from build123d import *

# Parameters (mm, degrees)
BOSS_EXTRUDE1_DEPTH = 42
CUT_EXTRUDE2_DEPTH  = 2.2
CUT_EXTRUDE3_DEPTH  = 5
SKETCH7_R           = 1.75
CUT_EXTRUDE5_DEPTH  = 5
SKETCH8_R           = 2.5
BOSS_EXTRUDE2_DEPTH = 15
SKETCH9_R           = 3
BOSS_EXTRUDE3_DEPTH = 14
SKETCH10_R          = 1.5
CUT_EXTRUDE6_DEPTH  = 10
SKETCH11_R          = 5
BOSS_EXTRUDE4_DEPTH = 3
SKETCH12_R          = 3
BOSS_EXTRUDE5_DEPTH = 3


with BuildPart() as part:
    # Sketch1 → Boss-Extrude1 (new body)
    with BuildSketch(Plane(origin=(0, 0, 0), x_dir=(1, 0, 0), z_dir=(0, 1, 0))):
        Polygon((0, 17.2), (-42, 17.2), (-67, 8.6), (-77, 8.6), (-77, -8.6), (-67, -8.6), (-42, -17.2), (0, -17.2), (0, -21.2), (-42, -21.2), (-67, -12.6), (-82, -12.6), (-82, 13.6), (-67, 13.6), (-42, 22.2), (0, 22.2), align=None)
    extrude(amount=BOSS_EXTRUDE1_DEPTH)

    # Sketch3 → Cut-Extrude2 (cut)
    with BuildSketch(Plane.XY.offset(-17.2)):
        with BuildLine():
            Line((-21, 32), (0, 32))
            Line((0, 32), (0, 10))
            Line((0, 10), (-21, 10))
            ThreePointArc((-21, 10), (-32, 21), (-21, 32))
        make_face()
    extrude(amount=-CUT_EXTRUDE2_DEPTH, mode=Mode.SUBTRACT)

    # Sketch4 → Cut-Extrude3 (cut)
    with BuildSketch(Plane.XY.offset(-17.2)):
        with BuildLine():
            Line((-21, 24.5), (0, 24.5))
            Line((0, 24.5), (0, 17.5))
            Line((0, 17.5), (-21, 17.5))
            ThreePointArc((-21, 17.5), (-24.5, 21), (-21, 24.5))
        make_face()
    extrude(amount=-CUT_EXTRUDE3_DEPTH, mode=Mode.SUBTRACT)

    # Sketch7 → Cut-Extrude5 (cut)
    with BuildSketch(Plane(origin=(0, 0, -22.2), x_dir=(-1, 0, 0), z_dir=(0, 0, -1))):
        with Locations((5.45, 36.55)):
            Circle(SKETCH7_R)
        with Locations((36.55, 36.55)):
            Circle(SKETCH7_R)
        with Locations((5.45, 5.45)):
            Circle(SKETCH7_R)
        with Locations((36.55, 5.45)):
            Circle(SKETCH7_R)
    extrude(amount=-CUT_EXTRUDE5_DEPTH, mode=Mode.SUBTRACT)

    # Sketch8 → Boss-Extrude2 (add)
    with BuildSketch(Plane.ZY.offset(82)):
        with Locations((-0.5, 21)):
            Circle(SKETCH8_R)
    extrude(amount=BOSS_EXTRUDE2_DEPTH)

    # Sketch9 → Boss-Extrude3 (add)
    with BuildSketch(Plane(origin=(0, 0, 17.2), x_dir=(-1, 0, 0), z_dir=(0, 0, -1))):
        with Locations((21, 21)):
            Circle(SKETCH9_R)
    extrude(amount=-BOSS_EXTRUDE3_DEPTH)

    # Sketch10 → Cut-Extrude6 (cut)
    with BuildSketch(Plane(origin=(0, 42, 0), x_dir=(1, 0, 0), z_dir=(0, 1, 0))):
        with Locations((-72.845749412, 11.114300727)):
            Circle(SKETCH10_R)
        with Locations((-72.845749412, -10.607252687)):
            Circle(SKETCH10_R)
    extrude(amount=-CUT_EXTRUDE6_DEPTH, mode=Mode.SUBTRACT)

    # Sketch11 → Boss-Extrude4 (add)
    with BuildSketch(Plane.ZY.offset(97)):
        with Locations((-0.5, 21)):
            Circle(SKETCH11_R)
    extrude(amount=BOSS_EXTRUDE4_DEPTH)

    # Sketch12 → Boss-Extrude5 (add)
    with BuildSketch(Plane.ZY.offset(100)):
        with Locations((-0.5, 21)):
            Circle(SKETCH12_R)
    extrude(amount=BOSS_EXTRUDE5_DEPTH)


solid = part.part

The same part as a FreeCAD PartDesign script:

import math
import FreeCAD as App
import Part
import Sketcher
from FreeCAD import Vector


def add_polygon(sketch, points):
    """Adds a closed chain of lines whose ends are joined by coincident constraints."""
    first, n = sketch.GeometryCount, len(points)
    for a, b in zip(points, points[1:] + points[:1]):
        sketch.addGeometry(Part.LineSegment(App.Vector(*a, 0), App.Vector(*b, 0)), False)
    for i in range(n):
        sketch.addConstraint(Sketcher.Constraint("Coincident", first + i, 2, first + (i + 1) % n, 1))

doc = App.newDocument("Part")
body = doc.addObject("PartDesign::Body", "Body")

sketch1 = doc.addObject("Sketcher::SketchObject", "Sketch")
body.addObject(sketch1)
sketch1.AttachmentSupport = (doc.XZ_Plane, [""])
sketch1.MapMode = "FlatFace"
add_polygon(sketch1, [(-42, -17.2), (0, -17.2), (0, -22.2), (-42, -22.2), (-67, -13.6), (-82, -13.6), (-82, 12.6), (-67, 12.6), (-42, 21.2), (0, 21.2), (0, 17.2), (-42, 17.2), (-67, 8.6), (-77, 8.6), (-77, -8.6), (-67, -8.6)])
sketch1.addConstraint([
    Sketcher.Constraint("Horizontal", 0),
    Sketcher.Constraint("Vertical", 1),
    Sketcher.Constraint("Horizontal", 2),
    Sketcher.Constraint("Horizontal", 4),
    Sketcher.Constraint("Vertical", 5),
    Sketcher.Constraint("Horizontal", 6),
    Sketcher.Constraint("Horizontal", 8),
    Sketcher.Constraint("Vertical", 9),
    Sketcher.Constraint("Horizontal", 10),
    Sketcher.Constraint("Horizontal", 12),
    Sketcher.Constraint("Vertical", 13),
    Sketcher.Constraint("Horizontal", 14),
    Sketcher.Constraint("Symmetric", 0, 2, 9, 2, -1, 1),
    Sketcher.Constraint("Symmetric", 11, 2, 14, 2, -1),
    Sketcher.Constraint("PointOnObject", 0, 2, -2),
    Sketcher.Constraint("Parallel", 7, 11),
    Sketcher.Constraint("Parallel", 3, 15),
    Sketcher.Constraint("Vertical", 3, 2, 6, 2),
    Sketcher.Constraint("Vertical", 2, 2, 7, 2),
    Sketcher.Constraint("Vertical", 7, 2, 10, 2),
    Sketcher.Constraint("Vertical", 6, 2, 11, 2),
    Sketcher.Constraint("Vertical", 10, 2, 15, 2),
    Sketcher.Constraint("DistanceX", 0, 1, 0, 2, 42.0),
    Sketcher.Constraint("DistanceX", 4, 2, 4, 1, 15.0),
    Sketcher.Constraint("DistanceX", 12, 2, 12, 1, 10.0),
    Sketcher.Constraint("DistanceY", 1, 2, 1, 1, 5.0),
    Sketcher.Constraint("DistanceY", 9, 2, 9, 1, 4.0),
    Sketcher.Constraint("DistanceY", 5, 1, 5, 2, 26.2),
    Sketcher.Constraint("DistanceX", 3, 2, -1, 1, 67.0),
    Sketcher.Constraint("DistanceY", 0, 2, -1, 1, 17.2),
])
pad1 = doc.addObject("PartDesign::Pad", "Pad")
body.addObject(pad1)
pad1.Profile = sketch1
pad1.Length = 42
pad1.Reversed = True

sketch2 = doc.addObject("Sketcher::SketchObject", "Sketch001")
body.addObject(sketch2)
sketch2.AttachmentSupport = (doc.XY_Plane, [""])
sketch2.MapMode = "FlatFace"
sketch2.AttachmentOffset = App.Placement(Vector(0, 0, -17.2), App.Rotation())
sketch2.addGeometry([
    Part.LineSegment(Vector(0, 32, 0), Vector(-21, 32, 0)),
    Part.ArcOfCircle(Part.Circle(Vector(-21, 21, 0), Vector(0, 0, 1), 11), math.radians(90), math.radians(270)),
    Part.LineSegment(Vector(-21, 10, 0), Vector(0, 10, 0)),
    Part.LineSegment(Vector(0, 10, 0), Vector(0, 32, 0)),
], False)
sketch2.addConstraint([
    Sketcher.Constraint("Tangent", 0, 2, 1, 1),
    Sketcher.Constraint("Tangent", 1, 2, 2, 1),
    Sketcher.Constraint("Coincident", 2, 2, 3, 1),
    Sketcher.Constraint("Coincident", 3, 2, 0, 1),
    Sketcher.Constraint("Horizontal", 0),
    Sketcher.Constraint("Horizontal", 2),
    Sketcher.Constraint("Vertical", 3),
    Sketcher.Constraint("PointOnObject", 2, 2, -2),
    Sketcher.Constraint("Radius", 1, 11.0),
    Sketcher.Constraint("DistanceX", 0, 2, 0, 1, 21.0),
    Sketcher.Constraint("DistanceY", -1, 1, 1, 3, 21.0),
])
pocket1 = doc.addObject("PartDesign::Pocket", "Pocket")
body.addObject(pocket1)
pocket1.Profile = sketch2
pocket1.Length = 2.2

sketch3 = doc.addObject("Sketcher::SketchObject", "Sketch002")
body.addObject(sketch3)
sketch3.AttachmentSupport = (doc.XY_Plane, [""])
sketch3.MapMode = "FlatFace"
sketch3.AttachmentOffset = App.Placement(Vector(0, 0, -17.2), App.Rotation())
sketch3.addGeometry([
    Part.LineSegment(Vector(0, 24.5, 0), Vector(-21, 24.5, 0)),
    Part.ArcOfCircle(Part.Circle(Vector(-21, 21, 0), Vector(0, 0, 1), 3.5), math.radians(90), math.radians(270)),
    Part.LineSegment(Vector(-21, 17.5, 0), Vector(0, 17.5, 0)),
    Part.LineSegment(Vector(0, 17.5, 0), Vector(0, 24.5, 0)),
], False)
sketch3.addConstraint([
    Sketcher.Constraint("Tangent", 0, 2, 1, 1),
    Sketcher.Constraint("Tangent", 1, 2, 2, 1),
    Sketcher.Constraint("Coincident", 2, 2, 3, 1),
    Sketcher.Constraint("Coincident", 3, 2, 0, 1),
    Sketcher.Constraint("Horizontal", 0),
    Sketcher.Constraint("Horizontal", 2),
    Sketcher.Constraint("Vertical", 3),
    Sketcher.Constraint("PointOnObject", 2, 2, -2),
    Sketcher.Constraint("Radius", 1, 3.5),
    Sketcher.Constraint("DistanceX", 0, 2, 0, 1, 21.0),
    Sketcher.Constraint("DistanceY", -1, 1, 1, 3, 21.0),
])
pocket2 = doc.addObject("PartDesign::Pocket", "Pocket001")
body.addObject(pocket2)
pocket2.Profile = sketch3
pocket2.Length = 5

sketch4 = doc.addObject("Sketcher::SketchObject", "Sketch003")
body.addObject(sketch4)
sketch4.AttachmentSupport = (doc.XY_Plane, [""])
sketch4.MapMode = "FlatFace"
sketch4.AttachmentOffset = App.Placement(Vector(0, 0, -22.2), App.Rotation())
sketch4.addGeometry([
    Part.Circle(Vector(-5.45, 36.55, 0), Vector(0, 0, 1), 1.75),
    Part.Circle(Vector(-36.55, 36.55, 0), Vector(0, 0, 1), 1.75),
    Part.Circle(Vector(-5.45, 5.45, 0), Vector(0, 0, 1), 1.75),
    Part.Circle(Vector(-36.55, 5.45, 0), Vector(0, 0, 1), 1.75),
], False)
sketch4.addConstraint([
    Sketcher.Constraint("Equal", 0, 1),
    Sketcher.Constraint("Equal", 1, 2),
    Sketcher.Constraint("Equal", 2, 3),
    Sketcher.Constraint("Horizontal", 0, 3, 1, 3),
    Sketcher.Constraint("Horizontal", 2, 3, 3, 3),
    Sketcher.Constraint("Vertical", 0, 3, 2, 3),
    Sketcher.Constraint("Vertical", 1, 3, 3, 3),
    Sketcher.Constraint("Diameter", 0, 3.5),
    Sketcher.Constraint("DistanceX", 1, 3, 0, 3, 31.1),
    Sketcher.Constraint("DistanceY", 2, 3, 0, 3, 31.1),
    Sketcher.Constraint("DistanceX", 0, 3, -1, 1, 5.45),
    Sketcher.Constraint("DistanceY", -1, 1, 0, 3, 36.55),
])
pocket3 = doc.addObject("PartDesign::Pocket", "Pocket002")
body.addObject(pocket3)
pocket3.Profile = sketch4
pocket3.Length = 5
pocket3.Reversed = True

sketch5 = doc.addObject("Sketcher::SketchObject", "Sketch004")
body.addObject(sketch5)
sketch5.AttachmentSupport = (doc.YZ_Plane, [""])
sketch5.MapMode = "FlatFace"
sketch5.AttachmentOffset = App.Placement(Vector(0, 0, -82), App.Rotation())
sketch5.addGeometry(Part.Circle(Vector(21, -0.5, 0), Vector(0, 0, 1), 2.5), False)
sketch5.addConstraint([
    Sketcher.Constraint("Diameter", 0, 5.0),
    Sketcher.Constraint("DistanceX", -1, 1, 0, 3, 21.0),
    Sketcher.Constraint("DistanceY", 0, 3, -1, 1, 0.5),
])
pad2 = doc.addObject("PartDesign::Pad", "Pad001")
body.addObject(pad2)
pad2.Profile = sketch5
pad2.Length = 15
pad2.Reversed = True

sketch6 = doc.addObject("Sketcher::SketchObject", "Sketch005")
body.addObject(sketch6)
sketch6.AttachmentSupport = (doc.XY_Plane, [""])
sketch6.MapMode = "FlatFace"
sketch6.AttachmentOffset = App.Placement(Vector(0, 0, 17.2), App.Rotation())
sketch6.addGeometry(Part.Circle(Vector(-21, 21, 0), Vector(0, 0, 1), 3), False)
sketch6.addConstraint([
    Sketcher.Constraint("Diameter", 0, 6.0),
    Sketcher.Constraint("DistanceX", 0, 3, -1, 1, 21.0),
    Sketcher.Constraint("DistanceY", -1, 1, 0, 3, 21.0),
])
pad3 = doc.addObject("PartDesign::Pad", "Pad002")
body.addObject(pad3)
pad3.Profile = sketch6
pad3.Length = 14

sketch7 = doc.addObject("Sketcher::SketchObject", "Sketch006")
body.addObject(sketch7)
sketch7.AttachmentSupport = (doc.XZ_Plane, [""])
sketch7.MapMode = "FlatFace"
sketch7.AttachmentOffset = App.Placement(Vector(0, 0, -42), App.Rotation())
sketch7.addGeometry([
    Part.Circle(Vector(-72.845749, -11.114301, 0), Vector(0, 0, 1), 1.5),
    Part.Circle(Vector(-72.845749, 10.607253, 0), Vector(0, 0, 1), 1.5),
], False)
sketch7.addConstraint([
    Sketcher.Constraint("Equal", 0, 1),
    Sketcher.Constraint("Vertical", 0, 3, 1, 3),
    Sketcher.Constraint("Diameter", 0, 3.0),
    Sketcher.Constraint("DistanceY", 0, 3, -1, 1, 11.114301),
    Sketcher.Constraint("DistanceX", 0, 3, -1, 1, 72.845749),
    Sketcher.Constraint("DistanceY", -1, 1, 1, 3, 10.607253),
])
pocket4 = doc.addObject("PartDesign::Pocket", "Pocket003")
body.addObject(pocket4)
pocket4.Profile = sketch7
pocket4.Length = 10
pocket4.Reversed = True

sketch8 = doc.addObject("Sketcher::SketchObject", "Sketch007")
body.addObject(sketch8)
sketch8.AttachmentSupport = (doc.YZ_Plane, [""])
sketch8.MapMode = "FlatFace"
sketch8.AttachmentOffset = App.Placement(Vector(0, 0, -97), App.Rotation())
sketch8.addGeometry(Part.Circle(Vector(21, -0.5, 0), Vector(0, 0, 1), 5), False)
sketch8.addConstraint([
    Sketcher.Constraint("Diameter", 0, 10.0),
    Sketcher.Constraint("DistanceX", -1, 1, 0, 3, 21.0),
    Sketcher.Constraint("DistanceY", 0, 3, -1, 1, 0.5),
])
pad4 = doc.addObject("PartDesign::Pad", "Pad003")
body.addObject(pad4)
pad4.Profile = sketch8
pad4.Length = 3
pad4.Reversed = True

sketch9 = doc.addObject("Sketcher::SketchObject", "Sketch008")
body.addObject(sketch9)
sketch9.AttachmentSupport = (doc.YZ_Plane, [""])
sketch9.MapMode = "FlatFace"
sketch9.AttachmentOffset = App.Placement(Vector(0, 0, -100), App.Rotation())
sketch9.addGeometry(Part.Circle(Vector(21, -0.5, 0), Vector(0, 0, 1), 3), False)
sketch9.addConstraint([
    Sketcher.Constraint("Diameter", 0, 6.0),
    Sketcher.Constraint("DistanceX", -1, 1, 0, 3, 21.0),
    Sketcher.Constraint("DistanceY", 0, 3, -1, 1, 0.5),
])
pad5 = doc.addObject("PartDesign::Pad", "Pad004")
body.addObject(pad5)
pad5.Profile = sketch9
pad5.Length = 3
pad5.Reversed = True

doc.recompute()
